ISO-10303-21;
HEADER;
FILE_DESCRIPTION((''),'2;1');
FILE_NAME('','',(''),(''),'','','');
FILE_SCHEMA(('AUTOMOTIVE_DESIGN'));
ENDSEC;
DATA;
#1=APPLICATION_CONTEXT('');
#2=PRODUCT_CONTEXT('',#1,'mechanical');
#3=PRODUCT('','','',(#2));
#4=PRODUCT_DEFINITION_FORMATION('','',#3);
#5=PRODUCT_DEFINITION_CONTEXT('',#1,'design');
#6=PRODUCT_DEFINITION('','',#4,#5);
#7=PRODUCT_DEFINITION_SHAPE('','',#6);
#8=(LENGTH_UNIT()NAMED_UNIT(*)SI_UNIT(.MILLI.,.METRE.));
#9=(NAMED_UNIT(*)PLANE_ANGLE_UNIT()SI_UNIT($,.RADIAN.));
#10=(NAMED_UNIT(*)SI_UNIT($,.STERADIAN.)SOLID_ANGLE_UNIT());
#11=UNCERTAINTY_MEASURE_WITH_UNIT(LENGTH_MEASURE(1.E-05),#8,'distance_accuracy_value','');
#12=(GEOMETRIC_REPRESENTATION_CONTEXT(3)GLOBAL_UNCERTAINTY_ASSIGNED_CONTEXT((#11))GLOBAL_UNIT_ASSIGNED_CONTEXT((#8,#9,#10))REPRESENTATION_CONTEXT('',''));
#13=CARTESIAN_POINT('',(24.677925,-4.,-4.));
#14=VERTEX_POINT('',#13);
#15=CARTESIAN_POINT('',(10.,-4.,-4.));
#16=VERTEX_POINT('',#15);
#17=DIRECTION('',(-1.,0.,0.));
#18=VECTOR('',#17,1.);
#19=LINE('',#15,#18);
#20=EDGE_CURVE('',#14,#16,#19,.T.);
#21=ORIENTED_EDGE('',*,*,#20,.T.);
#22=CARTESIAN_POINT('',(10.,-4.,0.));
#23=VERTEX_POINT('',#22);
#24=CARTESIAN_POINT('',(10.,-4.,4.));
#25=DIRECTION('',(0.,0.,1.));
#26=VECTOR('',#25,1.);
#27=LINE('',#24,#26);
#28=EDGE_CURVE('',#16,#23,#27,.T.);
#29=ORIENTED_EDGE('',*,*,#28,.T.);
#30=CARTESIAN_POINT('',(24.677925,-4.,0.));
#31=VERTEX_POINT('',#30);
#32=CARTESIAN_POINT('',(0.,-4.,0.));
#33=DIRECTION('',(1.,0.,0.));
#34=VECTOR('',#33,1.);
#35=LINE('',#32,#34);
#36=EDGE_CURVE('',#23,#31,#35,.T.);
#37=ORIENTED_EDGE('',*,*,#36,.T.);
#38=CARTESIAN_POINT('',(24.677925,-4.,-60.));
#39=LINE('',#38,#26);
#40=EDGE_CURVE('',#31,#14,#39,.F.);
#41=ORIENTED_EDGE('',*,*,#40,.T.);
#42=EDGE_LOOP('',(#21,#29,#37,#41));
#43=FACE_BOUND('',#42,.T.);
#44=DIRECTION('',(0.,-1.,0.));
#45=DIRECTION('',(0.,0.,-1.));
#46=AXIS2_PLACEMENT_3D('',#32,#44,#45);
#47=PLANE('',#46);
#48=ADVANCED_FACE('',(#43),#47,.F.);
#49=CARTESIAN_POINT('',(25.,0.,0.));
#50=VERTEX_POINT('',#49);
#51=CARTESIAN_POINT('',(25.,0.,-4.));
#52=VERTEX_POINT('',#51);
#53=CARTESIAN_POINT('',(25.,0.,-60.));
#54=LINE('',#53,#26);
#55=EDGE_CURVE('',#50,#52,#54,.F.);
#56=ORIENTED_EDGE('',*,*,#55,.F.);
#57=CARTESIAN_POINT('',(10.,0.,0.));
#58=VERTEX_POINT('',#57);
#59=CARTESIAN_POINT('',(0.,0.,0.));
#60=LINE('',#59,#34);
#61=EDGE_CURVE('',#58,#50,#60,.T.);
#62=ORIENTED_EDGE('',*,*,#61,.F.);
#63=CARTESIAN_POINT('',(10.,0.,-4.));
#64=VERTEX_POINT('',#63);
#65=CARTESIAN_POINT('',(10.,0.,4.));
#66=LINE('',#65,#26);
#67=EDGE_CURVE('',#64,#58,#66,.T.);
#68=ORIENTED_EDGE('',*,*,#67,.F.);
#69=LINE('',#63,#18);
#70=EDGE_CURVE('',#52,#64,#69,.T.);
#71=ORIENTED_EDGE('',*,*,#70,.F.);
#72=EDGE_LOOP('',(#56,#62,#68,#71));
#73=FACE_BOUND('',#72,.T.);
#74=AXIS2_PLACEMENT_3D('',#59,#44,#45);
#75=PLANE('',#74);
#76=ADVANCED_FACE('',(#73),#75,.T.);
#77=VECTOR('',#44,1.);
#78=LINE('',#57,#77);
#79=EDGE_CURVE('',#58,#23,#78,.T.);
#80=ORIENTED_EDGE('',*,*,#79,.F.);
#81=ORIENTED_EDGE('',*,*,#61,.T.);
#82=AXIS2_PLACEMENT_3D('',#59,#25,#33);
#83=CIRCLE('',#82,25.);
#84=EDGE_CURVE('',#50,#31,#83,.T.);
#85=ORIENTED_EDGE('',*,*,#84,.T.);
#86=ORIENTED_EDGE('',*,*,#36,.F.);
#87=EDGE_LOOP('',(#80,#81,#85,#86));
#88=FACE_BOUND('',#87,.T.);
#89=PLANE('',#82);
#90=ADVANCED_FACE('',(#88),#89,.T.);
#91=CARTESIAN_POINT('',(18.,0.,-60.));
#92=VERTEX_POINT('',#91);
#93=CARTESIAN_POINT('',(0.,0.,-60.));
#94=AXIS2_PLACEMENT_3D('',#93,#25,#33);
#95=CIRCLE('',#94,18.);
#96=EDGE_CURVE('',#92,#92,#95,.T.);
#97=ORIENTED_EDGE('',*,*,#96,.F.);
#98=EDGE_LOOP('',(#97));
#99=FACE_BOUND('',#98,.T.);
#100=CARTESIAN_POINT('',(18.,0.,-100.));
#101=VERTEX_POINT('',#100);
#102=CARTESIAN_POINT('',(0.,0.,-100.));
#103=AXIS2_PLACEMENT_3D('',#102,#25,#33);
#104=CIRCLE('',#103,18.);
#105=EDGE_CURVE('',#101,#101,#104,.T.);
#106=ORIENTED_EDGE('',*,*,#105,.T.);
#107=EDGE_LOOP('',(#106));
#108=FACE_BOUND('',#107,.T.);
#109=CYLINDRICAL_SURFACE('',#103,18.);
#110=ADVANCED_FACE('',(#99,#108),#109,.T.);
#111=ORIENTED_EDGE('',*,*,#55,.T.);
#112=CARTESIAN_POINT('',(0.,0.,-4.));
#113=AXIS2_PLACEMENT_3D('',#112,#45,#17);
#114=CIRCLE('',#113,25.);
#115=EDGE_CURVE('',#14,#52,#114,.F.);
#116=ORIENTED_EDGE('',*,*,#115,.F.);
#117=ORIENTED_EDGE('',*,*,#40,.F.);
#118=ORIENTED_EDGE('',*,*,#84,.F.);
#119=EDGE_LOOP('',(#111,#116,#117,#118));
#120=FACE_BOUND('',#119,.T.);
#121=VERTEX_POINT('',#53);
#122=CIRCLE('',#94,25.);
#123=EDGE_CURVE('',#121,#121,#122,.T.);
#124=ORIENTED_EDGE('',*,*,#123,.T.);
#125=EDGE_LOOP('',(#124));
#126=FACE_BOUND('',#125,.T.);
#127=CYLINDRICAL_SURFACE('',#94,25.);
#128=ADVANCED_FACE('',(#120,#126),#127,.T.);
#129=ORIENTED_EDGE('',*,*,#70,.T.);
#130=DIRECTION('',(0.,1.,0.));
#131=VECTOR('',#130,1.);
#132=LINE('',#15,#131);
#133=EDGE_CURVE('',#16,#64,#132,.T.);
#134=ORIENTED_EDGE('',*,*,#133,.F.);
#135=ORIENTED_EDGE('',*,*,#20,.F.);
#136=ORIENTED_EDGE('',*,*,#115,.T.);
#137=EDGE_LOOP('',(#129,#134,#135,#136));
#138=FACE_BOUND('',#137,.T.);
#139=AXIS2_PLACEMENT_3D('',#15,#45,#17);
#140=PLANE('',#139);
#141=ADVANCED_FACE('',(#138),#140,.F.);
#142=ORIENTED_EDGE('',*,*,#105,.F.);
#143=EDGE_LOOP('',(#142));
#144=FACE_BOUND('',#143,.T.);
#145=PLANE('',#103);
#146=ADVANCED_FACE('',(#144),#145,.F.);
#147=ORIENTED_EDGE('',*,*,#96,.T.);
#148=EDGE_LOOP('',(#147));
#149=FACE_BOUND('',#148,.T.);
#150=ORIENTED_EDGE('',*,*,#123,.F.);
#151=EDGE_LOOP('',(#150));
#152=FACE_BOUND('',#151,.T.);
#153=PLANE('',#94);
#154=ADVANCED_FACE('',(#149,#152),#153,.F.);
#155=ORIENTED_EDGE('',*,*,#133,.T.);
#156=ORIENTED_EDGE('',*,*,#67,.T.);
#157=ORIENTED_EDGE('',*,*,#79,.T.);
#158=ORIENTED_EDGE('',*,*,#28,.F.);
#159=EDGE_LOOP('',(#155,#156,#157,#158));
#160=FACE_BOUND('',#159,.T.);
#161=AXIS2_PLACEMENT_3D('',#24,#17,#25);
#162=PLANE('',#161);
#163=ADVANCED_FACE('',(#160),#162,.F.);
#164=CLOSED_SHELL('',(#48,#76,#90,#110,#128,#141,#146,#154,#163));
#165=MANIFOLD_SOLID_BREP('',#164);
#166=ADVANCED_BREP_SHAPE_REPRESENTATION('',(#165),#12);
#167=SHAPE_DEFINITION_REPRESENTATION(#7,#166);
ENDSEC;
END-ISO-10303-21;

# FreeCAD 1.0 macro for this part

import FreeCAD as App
import Part
import Sketcher
Q = App.Units.Quantity

doc = App.newDocument("Part")
body = doc.addObject("PartDesign::Body", "Body")

# Sketch on XY plane
sketch1 = doc.addObject("Sketcher::SketchObject", "Sketch")
body.addObject(sketch1)
sketch1.AttachmentSupport = (doc.XY_Plane, [""])
sketch1.MapMode = "FlatFace"
sketch1.addGeometry(Part.Circle(App.Vector(0, 0, 0), App.Vector(0, 0, 1), 25), False)
sketch1.addConstraint(Sketcher.Constraint("Coincident", 0, 3, -1, 1))
sketch1.addConstraint(Sketcher.Constraint("Diameter", 0, Q("50 mm")))
pad1 = doc.addObject("PartDesign::Pad", "Pad")
body.addObject(pad1)
pad1.Profile = sketch1
pad1.Length = 60
pad1.Reversed = True

# Sketch on XY plane
sketch2 = doc.addObject("Sketcher::SketchObject", "Sketch001")
body.addObject(sketch2)
sketch2.AttachmentSupport = (doc.XY_Plane, [""])
sketch2.MapMode = "FlatFace"
sketch2.addGeometry(Part.Circle(App.Vector(0, 0, 0), App.Vector(0, 0, 1), 18), False)
sketch2.addConstraint(Sketcher.Constraint("Coincident", 0, 3, -1, 1))
sketch2.addConstraint(Sketcher.Constraint("Diameter", 0, Q("36 mm")))
pad2 = doc.addObject("PartDesign::Pad", "Pad001")
body.addObject(pad2)
pad2.Profile = sketch2
pad2.Length = 100
pad2.Reversed = True

# Sketch on XZ plane
sketch3 = doc.addObject("Sketcher::SketchObject", "Sketch002")
body.addObject(sketch3)
sketch3.AttachmentSupport = (doc.XZ_Plane, [""])
sketch3.MapMode = "FlatFace"
sketch3.addGeometry(Part.LineSegment(App.Vector(10, -4, 0), App.Vector(10, 4, 0)), False)
sketch3.addGeometry(Part.LineSegment(App.Vector(10, 4, 0), App.Vector(35, 4, 0)), False)
sketch3.addGeometry(Part.LineSegment(App.Vector(35, 4, 0), App.Vector(35, -4, 0)), False)
sketch3.addGeometry(Part.LineSegment(App.Vector(35, -4, 0), App.Vector(10, -4, 0)), False)
sketch3.addConstraint(Sketcher.Constraint("Coincident", 0, 2, 1, 1))
sketch3.addConstraint(Sketcher.Constraint("Coincident", 1, 2, 2, 1))
sketch3.addConstraint(Sketcher.Constraint("Coincident", 2, 2, 3, 1))
sketch3.addConstraint(Sketcher.Constraint("Coincident", 3, 2, 0, 1))
sketch3.addConstraint(Sketcher.Constraint("Vertical", 0))
sketch3.addConstraint(Sketcher.Constraint("Horizontal", 1))
sketch3.addConstraint(Sketcher.Constraint("Vertical", 2))
sketch3.addConstraint(Sketcher.Constraint("Horizontal", 3))
sketch3.addConstraint(Sketcher.Constraint("DistanceX", 1, 1, 1, 2, Q("25 mm")))
sketch3.addConstraint(Sketcher.Constraint("DistanceY", 0, 1, 0, 2, Q("8 mm")))
sketch3.addConstraint(Sketcher.Constraint("DistanceX", -1, 1, 0, 2, Q("10 mm")))
sketch3.addConstraint(Sketcher.Constraint("DistanceY", -1, 1, 0, 2, Q("4 mm")))
pocket1 = doc.addObject("PartDesign::Pocket", "Pocket")
body.addObject(pocket1)
pocket1.Profile = sketch3
pocket1.Length = 4
pocket1.Reversed = True

doc.recompute()
